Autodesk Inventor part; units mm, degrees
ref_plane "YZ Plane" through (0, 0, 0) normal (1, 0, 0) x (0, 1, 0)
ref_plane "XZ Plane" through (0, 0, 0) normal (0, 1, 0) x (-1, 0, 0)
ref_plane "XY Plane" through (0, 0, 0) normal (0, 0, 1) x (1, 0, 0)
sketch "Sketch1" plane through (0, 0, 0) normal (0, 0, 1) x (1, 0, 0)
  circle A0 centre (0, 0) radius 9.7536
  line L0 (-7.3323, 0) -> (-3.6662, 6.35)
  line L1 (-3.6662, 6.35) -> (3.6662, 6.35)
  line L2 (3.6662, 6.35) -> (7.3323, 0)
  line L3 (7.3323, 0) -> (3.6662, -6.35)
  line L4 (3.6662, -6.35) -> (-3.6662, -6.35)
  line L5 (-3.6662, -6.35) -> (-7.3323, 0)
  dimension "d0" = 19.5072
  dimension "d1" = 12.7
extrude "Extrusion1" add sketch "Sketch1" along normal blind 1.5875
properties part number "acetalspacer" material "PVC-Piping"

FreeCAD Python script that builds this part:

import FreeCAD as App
import Part
import Sketcher
Q = App.Units.Quantity


def add_polygon(sketch, points):
    """Adds a closed chain of lines whose ends are joined by coincident constraints."""
    first, n = sketch.GeometryCount, len(points)
    for a, b in zip(points, points[1:] + points[:1]):
        sketch.addGeometry(Part.LineSegment(App.Vector(*a, 0), App.Vector(*b, 0)), False)
    for i in range(n):
        sketch.addConstraint(Sketcher.Constraint("Coincident", first + i, 2, first + (i + 1) % n, 1))

doc = App.newDocument("Part")
body = doc.addObject("PartDesign::Body", "Body")

sketch1 = body.newObject("Sketcher::SketchObject", "Sketch")
sketch1.AttachmentSupport = (doc.getObject("XY_Plane"), [""])
sketch1.MapMode = "FlatFace"
sketch1.addGeometry(Part.Circle(App.Vector(0, 0, 0), App.Vector(0, 0, 1), 9.7536), False)
add_polygon(sketch1, [(-3.6662, -6.35), (-7.3323, 0), (-3.6662, 6.35), (3.6662, 6.35), (7.3323, 0), (3.6662, -6.35)])
sketch1.addConstraint(Sketcher.Constraint("Horizontal", 3))
sketch1.addConstraint(Sketcher.Constraint("Horizontal", 6))
sketch1.addConstraint(Sketcher.Constraint("Coincident", 0, 3, -1, 1))
sketch1.addConstraint(Sketcher.Constraint("Symmetric", 1, 2, 4, 2, -1, 1))
sketch1.addConstraint(Sketcher.Constraint("Symmetric", 2, 2, 5, 2, -1, 1))
sketch1.addConstraint(Sketcher.Constraint("PointOnObject", 1, 2, -1))
sketch1.addConstraint(Sketcher.Constraint("Parallel", 1, 4))
sketch1.addConstraint(Sketcher.Constraint("Vertical", 3, 2, 5, 2))
sketch1.addConstraint(Sketcher.Constraint("Diameter", 0, Q("0.768 in")))
sketch1.addConstraint(Sketcher.Constraint("DistanceY", 5, 2, 3, 2, Q("0.5 in")))
sketch1.addConstraint(Sketcher.Constraint("Angle", 1, Q("119.9995 deg")))
sketch1.addConstraint(Sketcher.Constraint("DistanceX", 1, 2, 3, 2, Q("0.433 in")))
pad1 = body.newObject("PartDesign::Pad", "Pad")
pad1.Profile = sketch1
pad1.Length = Q("0.0625 in")

doc.recompute()
